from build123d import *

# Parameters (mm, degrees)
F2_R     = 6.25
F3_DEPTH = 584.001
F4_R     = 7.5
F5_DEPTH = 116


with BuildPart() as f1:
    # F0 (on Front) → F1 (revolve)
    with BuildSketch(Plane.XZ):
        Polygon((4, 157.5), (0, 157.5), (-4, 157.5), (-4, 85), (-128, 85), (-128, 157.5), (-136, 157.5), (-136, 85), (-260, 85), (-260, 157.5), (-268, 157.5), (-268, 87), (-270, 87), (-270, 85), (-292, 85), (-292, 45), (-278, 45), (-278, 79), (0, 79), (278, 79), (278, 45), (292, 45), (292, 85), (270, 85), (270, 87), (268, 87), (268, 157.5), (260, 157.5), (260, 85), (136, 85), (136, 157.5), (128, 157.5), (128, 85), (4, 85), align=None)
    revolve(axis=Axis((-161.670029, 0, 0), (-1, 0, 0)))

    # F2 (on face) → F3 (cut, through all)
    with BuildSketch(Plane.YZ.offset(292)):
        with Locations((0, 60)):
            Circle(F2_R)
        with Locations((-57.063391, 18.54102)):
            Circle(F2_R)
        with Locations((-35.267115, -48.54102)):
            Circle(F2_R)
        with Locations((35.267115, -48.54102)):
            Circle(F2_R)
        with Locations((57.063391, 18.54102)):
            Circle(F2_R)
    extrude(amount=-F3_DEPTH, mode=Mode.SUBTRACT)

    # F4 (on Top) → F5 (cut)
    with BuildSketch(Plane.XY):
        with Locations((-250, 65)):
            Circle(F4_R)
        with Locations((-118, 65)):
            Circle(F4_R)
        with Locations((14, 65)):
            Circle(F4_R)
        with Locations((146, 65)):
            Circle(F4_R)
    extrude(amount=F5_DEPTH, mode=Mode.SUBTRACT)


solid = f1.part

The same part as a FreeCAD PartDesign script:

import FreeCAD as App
import Part
import Sketcher


def add_polygon(sketch, points):
    """Adds a closed chain of lines whose ends are joined by coincident constraints."""
    first, n = sketch.GeometryCount, len(points)
    for a, b in zip(points, points[1:] + points[:1]):
        sketch.addGeometry(Part.LineSegment(App.Vector(*a, 0), App.Vector(*b, 0)), False)
    for i in range(n):
        sketch.addConstraint(Sketcher.Constraint("Coincident", first + i, 2, first + (i + 1) % n, 1))

doc = App.newDocument("Part")
body = doc.addObject("PartDesign::Body", "Body")

# Sketch on XZ plane
sketch1 = body.newObject("Sketcher::SketchObject", "Sketch")
sketch1.AttachmentSupport = (doc.getObject("XZ_Plane"), [""])
sketch1.MapMode = "FlatFace"
add_polygon(sketch1, [(4, 157.5), (-4, 157.5), (-4, 85), (-128, 85), (-128, 157.5), (-136, 157.5), (-136, 85), (-260, 85), (-260, 157.5), (-268, 157.5), (-268, 87), (-270, 87), (-270, 85), (-292, 85), (-292, 45), (-278, 45), (-278, 79), (278, 79), (278, 45), (292, 45), (292, 85), (270, 85), (270, 87), (268, 87), (268, 157.5), (260, 157.5), (260, 85), (136, 85), (136, 157.5), (128, 157.5), (128, 85), (4, 85)])  # lines 0-31
sketch1.addConstraint([
    Sketcher.Constraint("Horizontal", 0),
    Sketcher.Constraint("Vertical", 1),
    Sketcher.Constraint("Horizontal", 2),
    Sketcher.Constraint("Vertical", 3),
    Sketcher.Constraint("Horizontal", 4),
    Sketcher.Constraint("Vertical", 5),
    Sketcher.Constraint("Horizontal", 6),
    Sketcher.Constraint("Vertical", 7),
    Sketcher.Constraint("Horizontal", 8),
    Sketcher.Constraint("Vertical", 9),
    Sketcher.Constraint("Horizontal", 10),
    Sketcher.Constraint("Vertical", 11),
    Sketcher.Constraint("Horizontal", 12),
    Sketcher.Constraint("Vertical", 13),
    Sketcher.Constraint("Horizontal", 14),
    Sketcher.Constraint("Vertical", 15),
    Sketcher.Constraint("Horizontal", 16),
    Sketcher.Constraint("Vertical", 17),
    Sketcher.Constraint("Horizontal", 18),
    Sketcher.Constraint("Vertical", 19),
    Sketcher.Constraint("Horizontal", 20),
    Sketcher.Constraint("Vertical", 21),
    Sketcher.Constraint("Horizontal", 22),
    Sketcher.Constraint("Vertical", 23),
    Sketcher.Constraint("Horizontal", 24),
    Sketcher.Constraint("Vertical", 25),
    Sketcher.Constraint("Horizontal", 26),
    Sketcher.Constraint("Vertical", 27),
    Sketcher.Constraint("Horizontal", 28),
    Sketcher.Constraint("Vertical", 29),
    Sketcher.Constraint("Horizontal", 30),
    Sketcher.Constraint("Vertical", 31),
    Sketcher.Constraint("Symmetric", 14, 2, 17, 2, -2),
    Sketcher.Constraint("Symmetric", 12, 2, 19, 2, -2),
    Sketcher.Constraint("Symmetric", 10, 2, 21, 2, -2),
    Sketcher.Constraint("Symmetric", 8, 2, 23, 2, -2),
    Sketcher.Constraint("Symmetric", 6, 2, 25, 2, -2),
    Sketcher.Constraint("Symmetric", 4, 2, 27, 2, -2),
    Sketcher.Constraint("Symmetric", 2, 2, 29, 2, -2),
    Sketcher.Constraint("Horizontal", 0, 2, 3, 2),
    Sketcher.Constraint("Horizontal", 2, 2, 5, 2),
    Sketcher.Constraint("Horizontal", 4, 2, 7, 2),
    Sketcher.Constraint("Horizontal", 6, 2, 11, 2),
    Sketcher.Constraint("Equal", 0, 4),
    Sketcher.Constraint("Equal", 2, 6),
    Sketcher.Constraint("Equal", 4, 8),
    Sketcher.Constraint("Equal", 26, 30),
    Sketcher.Constraint("Equal", 22, 11),
    Sketcher.Constraint("DistanceX", 0, 2, 0, 1, 8.0),
    Sketcher.Constraint("DistanceX", 2, 2, 2, 1, 124.0),
    Sketcher.Constraint("DistanceX", 10, 2, 10, 1, 2.0),
    Sketcher.Constraint("DistanceX", 12, 2, 12, 1, 22.0),
    Sketcher.Constraint("DistanceX", 14, 1, 14, 2, 14.0),
    Sketcher.Constraint("DistanceY", 13, 2, 13, 1, 40.0),
    Sketcher.Constraint("DistanceY", 15, 1, 15, 2, 34.0),
    Sketcher.Constraint("DistanceY", 1, 2, 1, 1, 72.5),
    Sketcher.Constraint("DistanceY", -1, 1, 1, 2, 85.0),
])
revolution = body.newObject("PartDesign::Revolution", "Revolution")
revolution.Profile = sketch1
revolution.ReferenceAxis = (sketch1, ["H_Axis"])
revolution.Angle = 360

# Sketch on YZ plane
sketch2 = body.newObject("Sketcher::SketchObject", "Sketch001")
sketch2.AttachmentSupport = (doc.getObject("YZ_Plane"), [""])
sketch2.MapMode = "FlatFace"
sketch2.AttachmentOffset = App.Placement(App.Vector(0, 0, 292), App.Rotation())
sketch2.addGeometry([
    Part.Circle(App.Vector(0, 60, 0), App.Vector(0, 0, 1), 6.25),  # 0
    Part.Circle(App.Vector(-57.063391, 18.54102, 0), App.Vector(0, 0, 1), 6.25),  # 1
    Part.Circle(App.Vector(-35.267115, -48.54102, 0), App.Vector(0, 0, 1), 6.25),  # 2
    Part.Circle(App.Vector(35.267115, -48.54102, 0), App.Vector(0, 0, 1), 6.25),  # 3
    Part.Circle(App.Vector(57.063391, 18.54102, 0), App.Vector(0, 0, 1), 6.25),  # 4
], False)
sketch2.addConstraint([
    Sketcher.Constraint("Equal", 0, 1),
    Sketcher.Constraint("Equal", 1, 2),
    Sketcher.Constraint("Equal", 2, 3),
    Sketcher.Constraint("Equal", 3, 4),
    Sketcher.Constraint("Symmetric", 2, 3, 3, 3, -2),
    Sketcher.Constraint("Symmetric", 1, 3, 4, 3, -2),
    Sketcher.Constraint("PointOnObject", 0, 3, -2),
    Sketcher.Constraint("Diameter", 0, 12.5),
    Sketcher.Constraint("DistanceY", -1, 1, 0, 3, 60.0),
    Sketcher.Constraint("DistanceX", 1, 3, -1, 1, 57.063391),
    Sketcher.Constraint("DistanceY", -1, 1, 1, 3, 18.54102),
    Sketcher.Constraint("DistanceY", 2, 3, -1, 1, 48.54102),
    Sketcher.Constraint("DistanceX", 2, 3, 3, 3, 70.53423),
])
pocket1 = body.newObject("PartDesign::Pocket", "Pocket")
pocket1.Profile = sketch2
pocket1.Type = "ThroughAll"

# Sketch on XY plane
sketch3 = body.newObject("Sketcher::SketchObject", "Sketch002")
sketch3.AttachmentSupport = (doc.getObject("XY_Plane"), [""])
sketch3.MapMode = "FlatFace"
sketch3.addGeometry([
    Part.Circle(App.Vector(-250, 65, 0), App.Vector(0, 0, 1), 7.5),
    Part.Circle(App.Vector(-118, 65, 0), App.Vector(0, 0, 1), 7.5),
    Part.Circle(App.Vector(14, 65, 0), App.Vector(0, 0, 1), 7.5),
    Part.Circle(App.Vector(146, 65, 0), App.Vector(0, 0, 1), 7.5),
], False)
sketch3.addConstraint([
    Sketcher.Constraint("Equal", 0, 1),
    Sketcher.Constraint("Equal", 1, 2),
    Sketcher.Constraint("Equal", 2, 3),
    Sketcher.Constraint("Horizontal", 0, 3, 1, 3),
    Sketcher.Constraint("Horizontal", 1, 3, 2, 3),
    Sketcher.Constraint("Horizontal", 2, 3, 3, 3),
    Sketcher.Constraint("Diameter", 0, 15.0),
    Sketcher.Constraint("DistanceX", 0, 3, -1, 1, 250.0),
    Sketcher.Constraint("DistanceY", -1, 1, 0, 3, 65.0),
    Sketcher.Constraint("DistanceX", 1, 3, -1, 1, 118.0),
    Sketcher.Constraint("DistanceX", -1, 1, 2, 3, 14.0),
    Sketcher.Constraint("DistanceX", -1, 1, 3, 3, 146.0),
])
pocket2 = body.newObject("PartDesign::Pocket", "Pocket001")
pocket2.Profile = sketch3
pocket2.Length = 116
pocket2.Reversed = True

doc.recompute()
